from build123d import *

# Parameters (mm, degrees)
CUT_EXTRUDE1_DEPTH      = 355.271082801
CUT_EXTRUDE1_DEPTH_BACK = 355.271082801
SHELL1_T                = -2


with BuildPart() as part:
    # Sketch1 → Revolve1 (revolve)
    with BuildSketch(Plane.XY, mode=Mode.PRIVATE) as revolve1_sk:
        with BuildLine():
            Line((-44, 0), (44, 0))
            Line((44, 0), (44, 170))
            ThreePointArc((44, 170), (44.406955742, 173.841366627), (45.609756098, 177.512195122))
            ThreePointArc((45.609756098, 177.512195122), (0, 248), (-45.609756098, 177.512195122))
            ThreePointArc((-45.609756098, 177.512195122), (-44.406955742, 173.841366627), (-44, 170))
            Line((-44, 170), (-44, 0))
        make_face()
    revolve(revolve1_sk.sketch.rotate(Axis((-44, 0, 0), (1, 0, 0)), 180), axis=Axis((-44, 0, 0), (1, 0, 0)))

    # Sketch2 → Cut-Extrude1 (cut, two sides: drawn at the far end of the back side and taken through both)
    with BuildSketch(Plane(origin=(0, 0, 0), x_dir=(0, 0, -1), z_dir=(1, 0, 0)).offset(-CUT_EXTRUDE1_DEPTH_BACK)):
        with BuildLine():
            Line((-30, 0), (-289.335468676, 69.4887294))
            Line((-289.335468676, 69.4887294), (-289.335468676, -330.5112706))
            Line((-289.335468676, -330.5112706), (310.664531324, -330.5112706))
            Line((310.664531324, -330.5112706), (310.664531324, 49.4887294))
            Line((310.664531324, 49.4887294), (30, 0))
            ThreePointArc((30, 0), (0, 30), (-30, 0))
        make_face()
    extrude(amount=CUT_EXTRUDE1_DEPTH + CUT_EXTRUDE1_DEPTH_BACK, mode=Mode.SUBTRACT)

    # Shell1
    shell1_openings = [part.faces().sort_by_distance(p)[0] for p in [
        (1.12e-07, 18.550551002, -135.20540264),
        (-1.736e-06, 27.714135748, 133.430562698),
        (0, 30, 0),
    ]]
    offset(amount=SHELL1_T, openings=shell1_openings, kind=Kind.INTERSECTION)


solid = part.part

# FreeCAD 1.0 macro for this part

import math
import FreeCAD as App
import Part
import Sketcher
from FreeCAD import Vector
Q = App.Units.Quantity


def faces_at(feature, points):
    """Names of the faces that lie closest to the given points."""
    faces = feature.Shape.Faces
    near = lambda p: min(range(len(faces)), key=lambda i: faces[i].distToShape(Part.Vertex(*p))[0])
    return sorted({f"Face{near(p) + 1}" for p in points})

doc = App.newDocument("Part")
body = doc.addObject("PartDesign::Body", "Body")

sketch1 = body.newObject("Sketcher::SketchObject", "Sketch")
sketch1.AttachmentSupport = (doc.getObject("XY_Plane"), [""])
sketch1.MapMode = "FlatFace"
sketch1.addGeometry([
    Part.LineSegment(Vector(-44, 0, 0), Vector(44, 0, 0)),
    Part.LineSegment(Vector(44, 0, 0), Vector(44, 170, 0)),
    Part.ArcOfCircle(Part.Circle(Vector(62, 170, 0), Vector(0, 0, 1), 18), math.radians(156), math.radians(180)),
    Part.ArcOfCircle(Part.Circle(Vector(0, 198, 0), Vector(0, 0, 1), 50), math.radians(-24), math.radians(204)),
    Part.ArcOfCircle(Part.Circle(Vector(-62, 170, 0), Vector(0, 0, 1), 18), math.radians(0), math.radians(24)),
    Part.LineSegment(Vector(-44, 170, 0), Vector(-44, 0, 0)),
], False)
sketch1.addConstraint([
    Sketcher.Constraint("Coincident", 0, 2, 1, 1),
    Sketcher.Constraint("Tangent", 1, 2, 2, 2),
    Sketcher.Constraint("Tangent", 2, 1, 3, 1),
    Sketcher.Constraint("Tangent", 3, 2, 4, 2),
    Sketcher.Constraint("Tangent", 4, 1, 5, 1),
    Sketcher.Constraint("Coincident", 5, 2, 0, 1),
    Sketcher.Constraint("Horizontal", 0),
    Sketcher.Constraint("Vertical", 1),
    Sketcher.Constraint("Vertical", 5),
    Sketcher.Constraint("Equal", 2, 4),
    Sketcher.Constraint("Symmetric", 0, 2, 5, 2, -1, 1),
    Sketcher.Constraint("PointOnObject", 3, 3, -2),
    Sketcher.Constraint("Radius", 3, Q("50 mm")),
    Sketcher.Constraint("DistanceX", 0, 1, 0, 2, Q("88 mm")),
    Sketcher.Constraint("DistanceY", 1, 1, 1, 2, Q("170 mm")),
    Sketcher.Constraint("DistanceY", -1, 1, 3, 3, Q("198 mm")),
])
revolution = body.newObject("PartDesign::Revolution", "Revolution")
revolution.Profile = sketch1
revolution.ReferenceAxis = (sketch1, ["H_Axis"])
revolution.Angle = 360

sketch2 = body.newObject("Sketcher::SketchObject", "Sketch001")
sketch2.AttachmentSupport = (doc.getObject("YZ_Plane"), [""])
sketch2.MapMode = "FlatFace"
sketch2.addGeometry([
    Part.LineSegment(Vector(0, 30, 0), Vector(69, 289, 0)),
    Part.LineSegment(Vector(69, 289, 0), Vector(-331, 289, 0)),
    Part.LineSegment(Vector(-331, 289, 0), Vector(-331, -311, 0)),
    Part.LineSegment(Vector(-331, -311, 0), Vector(49, -311, 0)),
    Part.LineSegment(Vector(49, -311, 0), Vector(0, -30, 0)),
    Part.ArcOfCircle(Part.Circle(Vector(0, 0, 0), Vector(0, 0, 1), 30), math.radians(-90), math.radians(90)),
], False)
sketch2.addConstraint([
    Sketcher.Constraint("Coincident", 0, 2, 1, 1),
    Sketcher.Constraint("Coincident", 1, 2, 2, 1),
    Sketcher.Constraint("Coincident", 2, 2, 3, 1),
    Sketcher.Constraint("Coincident", 3, 2, 4, 1),
    Sketcher.Constraint("Coincident", 4, 2, 5, 1),
    Sketcher.Constraint("Coincident", 5, 2, 0, 1),
    Sketcher.Constraint("Horizontal", 1),
    Sketcher.Constraint("Vertical", 2),
    Sketcher.Constraint("Horizontal", 3),
    Sketcher.Constraint("Coincident", 5, 3, -1, 1),
    Sketcher.Constraint("PointOnObject", 4, 2, -2),
    Sketcher.Constraint("PointOnObject", 5, 2, -2),
    Sketcher.Constraint("Radius", 5, Q("30 mm")),
    Sketcher.Constraint("DistanceX", 1, 2, 1, 1, Q("400 mm")),
    Sketcher.Constraint("DistanceX", 3, 1, 3, 2, Q("380 mm")),
    Sketcher.Constraint("DistanceY", 2, 2, 2, 1, Q("600 mm")),
    Sketcher.Constraint("Angle", 0, Q("75 deg")),
    Sketcher.Constraint("Angle", 4, Q("100 deg")),
])
pocket1 = body.newObject("PartDesign::Pocket", "Pocket")
pocket1.Profile = sketch2
pocket1.Type = "ThroughAll"
pocket1.Midplane = True
doc.recompute()

thickness = body.newObject("PartDesign::Thickness", "Thickness")
thickness.Base = (pocket1, faces_at(pocket1, [(-0.001, 18.964, -137.551), (0.001, 28.33, 135.731), (0, 30, 0)]))
thickness.Value = 2
thickness.Reversed = True
thickness.Join = "Intersection"

doc.recompute()
